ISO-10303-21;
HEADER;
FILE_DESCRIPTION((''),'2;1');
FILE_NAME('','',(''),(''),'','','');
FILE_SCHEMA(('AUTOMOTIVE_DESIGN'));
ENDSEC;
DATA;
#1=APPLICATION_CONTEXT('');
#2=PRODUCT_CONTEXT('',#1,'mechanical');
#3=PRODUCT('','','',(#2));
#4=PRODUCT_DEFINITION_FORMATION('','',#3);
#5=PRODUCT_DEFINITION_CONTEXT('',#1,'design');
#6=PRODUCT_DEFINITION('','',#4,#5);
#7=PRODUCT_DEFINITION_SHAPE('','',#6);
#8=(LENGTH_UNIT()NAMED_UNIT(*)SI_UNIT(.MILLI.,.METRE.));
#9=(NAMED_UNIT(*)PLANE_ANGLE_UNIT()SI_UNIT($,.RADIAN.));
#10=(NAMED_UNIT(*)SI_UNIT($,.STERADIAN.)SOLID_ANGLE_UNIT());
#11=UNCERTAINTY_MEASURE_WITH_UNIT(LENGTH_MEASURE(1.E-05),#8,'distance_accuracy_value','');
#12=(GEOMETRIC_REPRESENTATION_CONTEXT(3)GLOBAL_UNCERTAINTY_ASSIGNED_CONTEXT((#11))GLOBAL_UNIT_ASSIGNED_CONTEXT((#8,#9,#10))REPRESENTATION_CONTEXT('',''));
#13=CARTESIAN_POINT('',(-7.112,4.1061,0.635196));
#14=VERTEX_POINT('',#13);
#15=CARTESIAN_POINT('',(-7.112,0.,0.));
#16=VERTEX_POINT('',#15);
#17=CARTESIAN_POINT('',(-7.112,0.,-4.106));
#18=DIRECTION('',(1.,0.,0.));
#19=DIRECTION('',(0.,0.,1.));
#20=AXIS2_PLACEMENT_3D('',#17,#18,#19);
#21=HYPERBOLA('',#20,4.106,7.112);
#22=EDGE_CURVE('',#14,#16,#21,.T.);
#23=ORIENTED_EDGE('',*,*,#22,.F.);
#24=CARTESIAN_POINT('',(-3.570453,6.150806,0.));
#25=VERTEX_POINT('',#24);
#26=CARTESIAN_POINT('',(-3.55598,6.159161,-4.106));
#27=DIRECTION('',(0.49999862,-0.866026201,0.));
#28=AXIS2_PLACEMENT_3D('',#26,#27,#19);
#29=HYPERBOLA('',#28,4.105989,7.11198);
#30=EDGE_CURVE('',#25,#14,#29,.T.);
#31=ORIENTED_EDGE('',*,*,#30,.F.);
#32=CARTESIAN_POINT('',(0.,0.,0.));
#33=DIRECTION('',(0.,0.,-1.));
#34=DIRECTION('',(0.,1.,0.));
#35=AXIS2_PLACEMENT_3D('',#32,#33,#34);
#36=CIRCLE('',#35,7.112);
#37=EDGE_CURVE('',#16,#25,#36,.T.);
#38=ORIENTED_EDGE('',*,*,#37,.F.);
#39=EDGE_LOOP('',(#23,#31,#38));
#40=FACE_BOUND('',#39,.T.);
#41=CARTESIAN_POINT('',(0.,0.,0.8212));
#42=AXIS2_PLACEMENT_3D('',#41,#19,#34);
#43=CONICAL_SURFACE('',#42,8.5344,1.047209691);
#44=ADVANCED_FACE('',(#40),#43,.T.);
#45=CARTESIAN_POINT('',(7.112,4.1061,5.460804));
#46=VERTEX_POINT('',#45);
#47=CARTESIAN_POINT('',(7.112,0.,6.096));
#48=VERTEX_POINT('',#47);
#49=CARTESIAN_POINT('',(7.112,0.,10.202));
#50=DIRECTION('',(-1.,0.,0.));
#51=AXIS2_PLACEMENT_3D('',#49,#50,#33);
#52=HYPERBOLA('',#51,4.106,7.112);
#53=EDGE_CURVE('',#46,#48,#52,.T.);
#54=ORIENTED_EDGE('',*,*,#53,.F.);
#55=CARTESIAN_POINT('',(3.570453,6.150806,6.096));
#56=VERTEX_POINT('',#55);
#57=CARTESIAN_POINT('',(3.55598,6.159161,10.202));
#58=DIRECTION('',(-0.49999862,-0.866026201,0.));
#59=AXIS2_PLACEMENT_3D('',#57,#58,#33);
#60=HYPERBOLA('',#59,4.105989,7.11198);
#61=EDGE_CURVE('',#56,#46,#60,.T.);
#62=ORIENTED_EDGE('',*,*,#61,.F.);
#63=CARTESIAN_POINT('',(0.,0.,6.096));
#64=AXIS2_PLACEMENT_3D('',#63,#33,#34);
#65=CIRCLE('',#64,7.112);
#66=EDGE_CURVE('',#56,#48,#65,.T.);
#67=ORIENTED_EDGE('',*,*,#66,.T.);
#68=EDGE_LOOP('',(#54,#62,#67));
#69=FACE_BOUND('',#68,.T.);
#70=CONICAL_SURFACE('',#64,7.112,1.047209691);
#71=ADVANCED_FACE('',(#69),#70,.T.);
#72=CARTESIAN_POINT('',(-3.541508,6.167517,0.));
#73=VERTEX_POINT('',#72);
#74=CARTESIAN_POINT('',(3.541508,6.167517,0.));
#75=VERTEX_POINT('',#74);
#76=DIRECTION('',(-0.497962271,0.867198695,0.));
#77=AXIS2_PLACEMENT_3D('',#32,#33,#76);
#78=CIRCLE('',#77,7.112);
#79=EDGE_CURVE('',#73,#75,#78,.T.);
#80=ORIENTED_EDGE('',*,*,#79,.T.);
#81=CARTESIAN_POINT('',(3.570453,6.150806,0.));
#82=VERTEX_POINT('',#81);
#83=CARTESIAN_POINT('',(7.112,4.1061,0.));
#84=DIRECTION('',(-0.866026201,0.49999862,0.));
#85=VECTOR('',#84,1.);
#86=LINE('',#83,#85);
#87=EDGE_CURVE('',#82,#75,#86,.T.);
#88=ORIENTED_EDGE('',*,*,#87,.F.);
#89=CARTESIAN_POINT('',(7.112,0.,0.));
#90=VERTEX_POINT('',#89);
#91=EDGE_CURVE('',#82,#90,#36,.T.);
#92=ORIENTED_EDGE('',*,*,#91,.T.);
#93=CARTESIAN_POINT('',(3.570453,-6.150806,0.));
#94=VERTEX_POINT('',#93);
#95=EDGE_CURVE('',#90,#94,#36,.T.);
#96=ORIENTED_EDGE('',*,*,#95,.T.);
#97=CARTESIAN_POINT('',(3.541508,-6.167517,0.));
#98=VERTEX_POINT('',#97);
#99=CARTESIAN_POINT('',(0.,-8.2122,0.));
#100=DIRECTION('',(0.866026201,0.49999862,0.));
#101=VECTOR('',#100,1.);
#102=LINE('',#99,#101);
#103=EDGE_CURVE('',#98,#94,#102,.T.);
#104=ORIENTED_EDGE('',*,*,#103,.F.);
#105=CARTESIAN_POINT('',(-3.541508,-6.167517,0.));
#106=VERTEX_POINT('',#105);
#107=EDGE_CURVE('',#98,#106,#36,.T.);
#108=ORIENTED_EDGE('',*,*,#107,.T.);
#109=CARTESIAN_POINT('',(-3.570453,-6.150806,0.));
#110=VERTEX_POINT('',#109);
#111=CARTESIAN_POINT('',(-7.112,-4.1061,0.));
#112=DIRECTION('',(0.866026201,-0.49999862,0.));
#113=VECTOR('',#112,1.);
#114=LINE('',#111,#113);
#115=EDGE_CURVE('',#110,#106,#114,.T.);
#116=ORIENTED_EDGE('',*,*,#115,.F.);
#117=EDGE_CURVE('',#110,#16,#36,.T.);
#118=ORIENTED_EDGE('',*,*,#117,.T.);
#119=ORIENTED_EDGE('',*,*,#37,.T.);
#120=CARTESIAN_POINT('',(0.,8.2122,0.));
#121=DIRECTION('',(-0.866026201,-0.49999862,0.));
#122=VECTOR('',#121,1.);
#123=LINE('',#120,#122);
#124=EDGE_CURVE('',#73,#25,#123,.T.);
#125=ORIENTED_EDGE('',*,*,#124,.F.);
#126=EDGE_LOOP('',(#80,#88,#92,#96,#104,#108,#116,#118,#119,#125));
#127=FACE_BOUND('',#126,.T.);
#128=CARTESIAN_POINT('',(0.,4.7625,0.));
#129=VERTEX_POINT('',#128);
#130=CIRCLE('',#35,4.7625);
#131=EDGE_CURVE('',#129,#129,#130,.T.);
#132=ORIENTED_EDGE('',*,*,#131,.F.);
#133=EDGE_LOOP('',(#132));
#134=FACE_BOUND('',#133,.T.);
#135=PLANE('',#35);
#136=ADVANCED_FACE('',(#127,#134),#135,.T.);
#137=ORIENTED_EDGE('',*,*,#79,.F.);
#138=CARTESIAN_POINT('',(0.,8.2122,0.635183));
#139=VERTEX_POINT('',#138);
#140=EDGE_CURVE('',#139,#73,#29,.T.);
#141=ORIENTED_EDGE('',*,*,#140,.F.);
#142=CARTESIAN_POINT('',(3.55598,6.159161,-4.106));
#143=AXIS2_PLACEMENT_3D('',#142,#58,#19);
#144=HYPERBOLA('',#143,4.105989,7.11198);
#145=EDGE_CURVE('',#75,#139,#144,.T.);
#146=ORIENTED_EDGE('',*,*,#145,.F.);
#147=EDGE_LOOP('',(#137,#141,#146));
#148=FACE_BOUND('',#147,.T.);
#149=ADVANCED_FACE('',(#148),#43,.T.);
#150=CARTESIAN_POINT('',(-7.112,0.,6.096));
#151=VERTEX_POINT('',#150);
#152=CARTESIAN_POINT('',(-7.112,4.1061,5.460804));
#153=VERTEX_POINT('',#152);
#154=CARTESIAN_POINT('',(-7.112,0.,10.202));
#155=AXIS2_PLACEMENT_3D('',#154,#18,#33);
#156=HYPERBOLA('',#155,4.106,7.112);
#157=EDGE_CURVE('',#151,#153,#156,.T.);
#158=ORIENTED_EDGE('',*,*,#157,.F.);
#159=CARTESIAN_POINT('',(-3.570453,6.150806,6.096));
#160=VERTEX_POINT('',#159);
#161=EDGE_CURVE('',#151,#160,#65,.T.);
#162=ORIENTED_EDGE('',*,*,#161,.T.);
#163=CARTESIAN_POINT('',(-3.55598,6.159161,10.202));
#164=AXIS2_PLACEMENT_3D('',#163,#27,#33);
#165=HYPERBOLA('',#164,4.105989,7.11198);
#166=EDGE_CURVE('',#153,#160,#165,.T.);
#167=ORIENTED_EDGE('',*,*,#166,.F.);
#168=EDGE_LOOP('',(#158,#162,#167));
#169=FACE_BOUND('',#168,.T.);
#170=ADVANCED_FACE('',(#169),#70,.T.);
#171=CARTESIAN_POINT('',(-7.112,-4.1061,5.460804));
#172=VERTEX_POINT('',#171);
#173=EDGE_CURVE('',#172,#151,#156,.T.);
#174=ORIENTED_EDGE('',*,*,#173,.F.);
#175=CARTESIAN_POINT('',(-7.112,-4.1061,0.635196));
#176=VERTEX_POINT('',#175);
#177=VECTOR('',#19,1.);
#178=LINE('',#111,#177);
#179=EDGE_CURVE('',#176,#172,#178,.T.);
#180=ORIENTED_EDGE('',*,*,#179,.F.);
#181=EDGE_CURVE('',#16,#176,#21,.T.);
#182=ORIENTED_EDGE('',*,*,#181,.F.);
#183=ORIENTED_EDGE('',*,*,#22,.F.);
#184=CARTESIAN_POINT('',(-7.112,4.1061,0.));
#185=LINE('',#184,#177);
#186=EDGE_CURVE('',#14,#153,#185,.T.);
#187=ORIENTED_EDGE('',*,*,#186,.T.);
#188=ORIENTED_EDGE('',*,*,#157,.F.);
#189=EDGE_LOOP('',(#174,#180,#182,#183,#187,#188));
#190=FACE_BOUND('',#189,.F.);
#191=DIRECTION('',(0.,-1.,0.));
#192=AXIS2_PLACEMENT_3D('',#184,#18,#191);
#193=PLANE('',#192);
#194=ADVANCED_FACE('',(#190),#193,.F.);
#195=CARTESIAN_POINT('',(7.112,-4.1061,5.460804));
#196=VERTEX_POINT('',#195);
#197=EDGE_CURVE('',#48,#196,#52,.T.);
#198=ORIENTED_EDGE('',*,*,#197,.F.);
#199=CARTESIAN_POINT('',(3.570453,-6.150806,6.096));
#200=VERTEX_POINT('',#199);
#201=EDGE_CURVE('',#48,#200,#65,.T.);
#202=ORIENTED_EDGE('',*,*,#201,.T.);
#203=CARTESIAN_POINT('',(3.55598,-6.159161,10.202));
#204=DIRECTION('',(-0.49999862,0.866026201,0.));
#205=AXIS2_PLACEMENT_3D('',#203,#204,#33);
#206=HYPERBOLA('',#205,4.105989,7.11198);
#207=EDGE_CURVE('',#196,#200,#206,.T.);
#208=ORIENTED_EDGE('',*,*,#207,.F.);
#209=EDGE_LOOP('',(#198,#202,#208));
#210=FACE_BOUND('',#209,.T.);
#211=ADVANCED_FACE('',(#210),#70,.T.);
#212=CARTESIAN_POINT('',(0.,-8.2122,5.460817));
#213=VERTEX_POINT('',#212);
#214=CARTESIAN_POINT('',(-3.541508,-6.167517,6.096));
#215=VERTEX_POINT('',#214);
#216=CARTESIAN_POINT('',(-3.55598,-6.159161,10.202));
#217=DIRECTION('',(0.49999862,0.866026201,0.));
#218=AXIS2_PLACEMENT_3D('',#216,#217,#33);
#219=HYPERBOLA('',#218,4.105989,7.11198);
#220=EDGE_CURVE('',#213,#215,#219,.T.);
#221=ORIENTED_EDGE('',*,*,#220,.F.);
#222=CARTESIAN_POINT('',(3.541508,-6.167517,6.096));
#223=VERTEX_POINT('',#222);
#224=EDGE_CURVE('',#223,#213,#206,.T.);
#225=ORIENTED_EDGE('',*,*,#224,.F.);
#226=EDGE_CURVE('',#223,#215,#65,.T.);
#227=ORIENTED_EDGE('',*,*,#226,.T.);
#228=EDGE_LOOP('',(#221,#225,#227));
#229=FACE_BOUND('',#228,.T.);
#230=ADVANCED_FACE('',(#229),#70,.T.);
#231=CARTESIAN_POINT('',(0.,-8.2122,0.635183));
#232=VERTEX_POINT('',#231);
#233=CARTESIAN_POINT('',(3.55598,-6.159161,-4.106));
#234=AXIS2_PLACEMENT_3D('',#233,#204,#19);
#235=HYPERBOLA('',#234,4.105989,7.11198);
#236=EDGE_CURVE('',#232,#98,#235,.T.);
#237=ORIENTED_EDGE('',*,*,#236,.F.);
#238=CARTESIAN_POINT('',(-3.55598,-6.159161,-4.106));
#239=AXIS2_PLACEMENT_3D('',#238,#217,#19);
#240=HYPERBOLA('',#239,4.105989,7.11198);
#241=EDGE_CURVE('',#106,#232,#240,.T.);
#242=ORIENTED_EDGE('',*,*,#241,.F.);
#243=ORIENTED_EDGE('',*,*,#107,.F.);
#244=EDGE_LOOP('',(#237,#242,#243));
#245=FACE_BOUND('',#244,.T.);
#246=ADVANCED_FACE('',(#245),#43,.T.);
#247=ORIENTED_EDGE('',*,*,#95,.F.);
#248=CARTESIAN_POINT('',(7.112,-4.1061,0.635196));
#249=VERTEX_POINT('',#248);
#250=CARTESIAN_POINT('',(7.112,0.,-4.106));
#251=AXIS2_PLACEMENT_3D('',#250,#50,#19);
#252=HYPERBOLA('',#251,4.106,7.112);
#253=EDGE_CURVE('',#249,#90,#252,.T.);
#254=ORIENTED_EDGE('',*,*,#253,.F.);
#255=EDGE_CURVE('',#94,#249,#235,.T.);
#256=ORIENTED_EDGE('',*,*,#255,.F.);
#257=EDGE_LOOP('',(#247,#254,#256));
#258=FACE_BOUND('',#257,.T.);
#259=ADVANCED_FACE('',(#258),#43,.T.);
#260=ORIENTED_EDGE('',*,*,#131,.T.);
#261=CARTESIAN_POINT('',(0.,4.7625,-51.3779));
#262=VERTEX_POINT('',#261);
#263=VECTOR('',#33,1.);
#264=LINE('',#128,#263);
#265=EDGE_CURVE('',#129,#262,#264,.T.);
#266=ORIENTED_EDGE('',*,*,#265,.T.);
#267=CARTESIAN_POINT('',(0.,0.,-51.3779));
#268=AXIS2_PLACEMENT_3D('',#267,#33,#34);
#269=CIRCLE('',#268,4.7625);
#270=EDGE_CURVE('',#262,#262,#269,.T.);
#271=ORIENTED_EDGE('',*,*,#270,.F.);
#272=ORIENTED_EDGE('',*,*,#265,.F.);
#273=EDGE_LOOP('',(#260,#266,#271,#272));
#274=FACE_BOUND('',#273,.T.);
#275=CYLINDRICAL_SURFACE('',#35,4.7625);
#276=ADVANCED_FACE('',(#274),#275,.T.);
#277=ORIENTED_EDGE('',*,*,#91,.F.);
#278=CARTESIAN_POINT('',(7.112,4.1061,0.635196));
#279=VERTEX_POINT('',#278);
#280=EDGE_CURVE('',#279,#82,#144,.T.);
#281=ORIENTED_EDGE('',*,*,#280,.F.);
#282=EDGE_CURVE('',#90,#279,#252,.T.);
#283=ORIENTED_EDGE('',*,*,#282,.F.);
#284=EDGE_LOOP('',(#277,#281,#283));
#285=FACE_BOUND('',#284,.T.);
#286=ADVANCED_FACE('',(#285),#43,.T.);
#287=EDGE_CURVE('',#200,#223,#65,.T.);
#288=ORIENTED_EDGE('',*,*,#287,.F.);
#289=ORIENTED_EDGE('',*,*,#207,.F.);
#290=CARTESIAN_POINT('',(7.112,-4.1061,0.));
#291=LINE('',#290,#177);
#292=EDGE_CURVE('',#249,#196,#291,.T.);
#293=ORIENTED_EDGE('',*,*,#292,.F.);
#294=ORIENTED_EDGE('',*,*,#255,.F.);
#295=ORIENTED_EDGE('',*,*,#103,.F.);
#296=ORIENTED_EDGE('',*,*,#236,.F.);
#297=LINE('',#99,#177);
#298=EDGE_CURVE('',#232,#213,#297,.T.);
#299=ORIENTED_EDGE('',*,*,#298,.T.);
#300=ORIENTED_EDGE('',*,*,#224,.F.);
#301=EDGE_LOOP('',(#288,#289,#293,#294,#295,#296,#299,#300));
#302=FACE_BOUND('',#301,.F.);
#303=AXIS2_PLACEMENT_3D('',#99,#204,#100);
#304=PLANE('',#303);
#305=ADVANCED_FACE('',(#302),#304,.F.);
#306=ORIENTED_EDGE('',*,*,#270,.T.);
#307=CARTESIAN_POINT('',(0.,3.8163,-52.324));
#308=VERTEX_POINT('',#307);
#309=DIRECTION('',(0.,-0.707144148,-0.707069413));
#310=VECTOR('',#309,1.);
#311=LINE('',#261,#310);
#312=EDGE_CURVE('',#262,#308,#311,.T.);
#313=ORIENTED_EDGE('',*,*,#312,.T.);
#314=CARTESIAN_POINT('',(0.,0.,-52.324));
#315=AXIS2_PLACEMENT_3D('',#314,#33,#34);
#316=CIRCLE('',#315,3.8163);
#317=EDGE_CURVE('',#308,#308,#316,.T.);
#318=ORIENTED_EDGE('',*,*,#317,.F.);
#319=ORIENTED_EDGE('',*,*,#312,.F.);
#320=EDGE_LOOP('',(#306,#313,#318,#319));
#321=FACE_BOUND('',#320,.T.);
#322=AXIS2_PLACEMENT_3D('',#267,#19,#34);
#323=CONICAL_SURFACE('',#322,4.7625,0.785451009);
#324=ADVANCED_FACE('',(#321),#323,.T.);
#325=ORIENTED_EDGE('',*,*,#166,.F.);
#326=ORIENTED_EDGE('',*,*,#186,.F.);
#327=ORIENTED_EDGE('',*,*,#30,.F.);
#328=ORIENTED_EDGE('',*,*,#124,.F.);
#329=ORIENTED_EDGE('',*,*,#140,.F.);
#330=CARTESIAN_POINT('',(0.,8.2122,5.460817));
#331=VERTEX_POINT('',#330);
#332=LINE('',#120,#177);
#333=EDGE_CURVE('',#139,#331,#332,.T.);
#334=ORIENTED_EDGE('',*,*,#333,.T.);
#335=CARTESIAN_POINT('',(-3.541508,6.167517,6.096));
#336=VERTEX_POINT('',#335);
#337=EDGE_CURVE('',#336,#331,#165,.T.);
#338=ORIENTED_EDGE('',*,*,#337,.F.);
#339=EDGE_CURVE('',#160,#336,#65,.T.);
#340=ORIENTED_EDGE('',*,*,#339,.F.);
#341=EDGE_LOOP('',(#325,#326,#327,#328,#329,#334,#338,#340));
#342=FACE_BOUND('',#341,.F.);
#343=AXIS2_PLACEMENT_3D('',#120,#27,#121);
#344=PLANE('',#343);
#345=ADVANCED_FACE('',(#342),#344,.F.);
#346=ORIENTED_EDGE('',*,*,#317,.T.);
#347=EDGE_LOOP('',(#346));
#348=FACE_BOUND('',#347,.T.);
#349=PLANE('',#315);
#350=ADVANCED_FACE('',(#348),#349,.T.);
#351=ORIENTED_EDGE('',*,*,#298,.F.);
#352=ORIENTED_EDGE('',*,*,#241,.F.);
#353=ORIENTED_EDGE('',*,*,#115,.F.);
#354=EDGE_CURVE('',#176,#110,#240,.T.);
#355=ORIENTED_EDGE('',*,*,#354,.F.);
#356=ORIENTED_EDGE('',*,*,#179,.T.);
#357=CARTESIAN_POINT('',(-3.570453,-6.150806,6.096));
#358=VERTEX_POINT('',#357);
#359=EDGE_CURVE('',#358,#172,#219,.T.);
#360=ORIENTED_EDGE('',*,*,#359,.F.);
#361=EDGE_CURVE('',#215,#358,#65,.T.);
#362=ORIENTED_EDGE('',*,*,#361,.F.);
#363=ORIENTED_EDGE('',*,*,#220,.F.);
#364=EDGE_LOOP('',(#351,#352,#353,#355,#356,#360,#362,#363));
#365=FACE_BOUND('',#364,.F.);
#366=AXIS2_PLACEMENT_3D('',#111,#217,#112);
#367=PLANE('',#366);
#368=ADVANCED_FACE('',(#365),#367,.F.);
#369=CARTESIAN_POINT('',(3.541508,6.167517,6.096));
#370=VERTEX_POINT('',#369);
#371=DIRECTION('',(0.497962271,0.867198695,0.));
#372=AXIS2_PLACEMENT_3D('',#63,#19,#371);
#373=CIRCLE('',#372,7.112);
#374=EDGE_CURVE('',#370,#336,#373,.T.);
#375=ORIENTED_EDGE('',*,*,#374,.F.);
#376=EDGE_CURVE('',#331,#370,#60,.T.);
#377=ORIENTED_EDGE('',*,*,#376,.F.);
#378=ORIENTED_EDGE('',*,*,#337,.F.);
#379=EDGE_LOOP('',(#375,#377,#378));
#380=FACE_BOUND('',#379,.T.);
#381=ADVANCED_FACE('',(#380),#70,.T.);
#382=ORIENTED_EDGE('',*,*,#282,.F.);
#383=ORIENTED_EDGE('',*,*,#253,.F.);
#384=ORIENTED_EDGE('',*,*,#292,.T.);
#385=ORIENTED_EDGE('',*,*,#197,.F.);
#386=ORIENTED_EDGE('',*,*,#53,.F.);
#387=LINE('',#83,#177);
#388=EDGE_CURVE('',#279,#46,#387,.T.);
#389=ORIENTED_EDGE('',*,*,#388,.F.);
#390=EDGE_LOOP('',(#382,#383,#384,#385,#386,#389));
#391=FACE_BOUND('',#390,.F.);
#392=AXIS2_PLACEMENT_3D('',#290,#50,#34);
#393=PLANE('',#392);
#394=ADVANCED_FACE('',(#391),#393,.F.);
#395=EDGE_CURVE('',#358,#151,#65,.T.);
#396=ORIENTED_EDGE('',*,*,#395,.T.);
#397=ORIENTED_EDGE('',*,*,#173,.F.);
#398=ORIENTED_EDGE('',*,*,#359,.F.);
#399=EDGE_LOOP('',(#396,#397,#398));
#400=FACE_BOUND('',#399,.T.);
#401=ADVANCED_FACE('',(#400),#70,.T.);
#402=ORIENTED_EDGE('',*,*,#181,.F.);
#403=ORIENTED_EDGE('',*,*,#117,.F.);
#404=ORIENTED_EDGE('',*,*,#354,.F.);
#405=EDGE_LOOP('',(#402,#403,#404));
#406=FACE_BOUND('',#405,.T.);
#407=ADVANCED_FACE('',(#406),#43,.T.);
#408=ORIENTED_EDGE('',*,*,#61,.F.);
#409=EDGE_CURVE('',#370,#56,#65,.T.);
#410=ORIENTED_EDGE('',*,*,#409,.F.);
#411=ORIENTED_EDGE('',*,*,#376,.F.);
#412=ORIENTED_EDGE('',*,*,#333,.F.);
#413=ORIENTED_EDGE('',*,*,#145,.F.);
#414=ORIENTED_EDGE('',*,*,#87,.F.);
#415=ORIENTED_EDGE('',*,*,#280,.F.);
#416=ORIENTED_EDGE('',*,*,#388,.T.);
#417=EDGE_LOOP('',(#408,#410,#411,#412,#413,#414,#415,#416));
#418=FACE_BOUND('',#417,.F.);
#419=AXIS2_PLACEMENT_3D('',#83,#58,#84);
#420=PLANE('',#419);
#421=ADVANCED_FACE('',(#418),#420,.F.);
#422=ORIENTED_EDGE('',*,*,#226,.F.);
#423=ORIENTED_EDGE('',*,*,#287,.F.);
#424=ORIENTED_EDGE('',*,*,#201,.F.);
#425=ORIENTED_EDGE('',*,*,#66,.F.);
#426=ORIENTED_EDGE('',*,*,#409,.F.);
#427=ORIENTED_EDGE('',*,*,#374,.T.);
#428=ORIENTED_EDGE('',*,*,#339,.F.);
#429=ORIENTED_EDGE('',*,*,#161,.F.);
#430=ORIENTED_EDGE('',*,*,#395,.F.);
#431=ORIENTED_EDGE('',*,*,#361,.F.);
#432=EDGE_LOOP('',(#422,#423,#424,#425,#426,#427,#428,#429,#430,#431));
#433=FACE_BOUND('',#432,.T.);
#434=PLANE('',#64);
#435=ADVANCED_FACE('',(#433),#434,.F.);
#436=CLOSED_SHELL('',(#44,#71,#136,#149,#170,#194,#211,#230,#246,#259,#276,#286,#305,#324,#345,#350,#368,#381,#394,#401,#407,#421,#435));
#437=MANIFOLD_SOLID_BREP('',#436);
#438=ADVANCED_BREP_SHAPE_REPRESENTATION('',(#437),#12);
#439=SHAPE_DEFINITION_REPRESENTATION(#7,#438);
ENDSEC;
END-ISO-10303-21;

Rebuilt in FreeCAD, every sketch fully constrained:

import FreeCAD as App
import Part
import Sketcher
Q = App.Units.Quantity


def add_polygon(sketch, points):
    """Adds a closed chain of lines whose ends are joined by coincident constraints."""
    first, n = sketch.GeometryCount, len(points)
    for a, b in zip(points, points[1:] + points[:1]):
        sketch.addGeometry(Part.LineSegment(App.Vector(*a, 0), App.Vector(*b, 0)), False)
    for i in range(n):
        sketch.addConstraint(Sketcher.Constraint("Coincident", first + i, 2, first + (i + 1) % n, 1))

doc = App.newDocument("Part")
params = doc.addObject("Spreadsheet::Sheet", "Params")
for row, (alias, value) in enumerate([
    ("sketch1_height", "2.3 in"),
    ("sketch1_width", "0.28 in"),
    ("revolution_angle", "360 deg"),
    ("sketch2_diameter", "1 in"),
    ("pocket1_length", "1 in"),
], start=1):
    params.set(f"A{row}", alias)
    params.set(f"B{row}", "=" + value)
    params.setAlias(f"B{row}", alias)

body = doc.addObject("PartDesign::Body", "Body")

sketch1 = body.newObject("Sketcher::SketchObject", "Sketch")
sketch1.AttachmentSupport = (doc.getObject("YZ_Plane"), [""])
sketch1.MapMode = "FlatFace"
add_polygon(sketch1, [(0, 6.1), (0, -52.3), (3.8, -52.3), (4.8, -51.4), (4.8, 0), (7.1, 0), (8.5, 0.8), (8.5, 5.3), (7.1, 6.1)])
sketch1.addConstraint([
    Sketcher.Constraint("Vertical", 0),
    Sketcher.Constraint("Horizontal", 1),
    Sketcher.Constraint("Vertical", 3),
    Sketcher.Constraint("Horizontal", 4),
    Sketcher.Constraint("Vertical", 6),
    Sketcher.Constraint("Horizontal", 8),
    Sketcher.Constraint("PointOnObject", 0, 2, -2),
    Sketcher.Constraint("PointOnObject", 3, 2, -1),
    Sketcher.Constraint("Vertical", 4, 2, 7, 2),
    Sketcher.Constraint("Equal", 5, 7),
    Sketcher.Constraint("DistanceY", 0, 2, 0, 1, Q("2.3 in")),
    Sketcher.Constraint("Angle", 5, Q("29.9993 deg")),
    Sketcher.Constraint("DistanceX", 8, 2, 8, 1, Q("0.28 in")),
    Sketcher.Constraint("DistanceY", 0, 2, -1, 1, Q("2.06 in")),
    Sketcher.Constraint("DistanceX", 4, 1, 4, 2, Q("0.0925 in")),
    Sketcher.Constraint("DistanceX", -1, 1, 5, 2, Q("0.336 in")),
    Sketcher.Constraint("DistanceX", 1, 1, 1, 2, 3.8163),
    Sketcher.Constraint("DistanceY", 3, 1, 3, 2, 51.378),
])
sketch1.setExpression("Constraints[19]", "Params.sketch1_height")
sketch1.setExpression("Constraints[21]", "Params.sketch1_width")
revolution = body.newObject("PartDesign::Revolution", "Revolution")
revolution.Profile = sketch1
revolution.ReferenceAxis = (sketch1, ["V_Axis"])
revolution.setExpression("Angle", "Params.revolution_angle")

sketch2 = body.newObject("Sketcher::SketchObject", "Sketch001")
sketch2.AttachmentSupport = (doc.getObject("XY_Plane"), [""])
sketch2.MapMode = "FlatFace"
sketch2.addGeometry(Part.Circle(App.Vector(0, 0, 0), App.Vector(0, 0, 1), 13), False)
add_polygon(sketch2, [(0, -8), (-7, -4), (-7, 4), (0, 8), (7, 4), (7, -4)])
sketch2.addConstraint([
    Sketcher.Constraint("Vertical", 2),
    Sketcher.Constraint("Vertical", 5),
    Sketcher.Constraint("Coincident", 0, 3, -1, 1),
    Sketcher.Constraint("Symmetric", 1, 2, 4, 2, -1, 1),
    Sketcher.Constraint("Symmetric", 3, 2, 6, 2, -1, 1),
    Sketcher.Constraint("PointOnObject", 3, 2, -2),
    Sketcher.Constraint("Parallel", 3, 6),
    Sketcher.Constraint("Horizontal", 2, 2, 4, 2),
    Sketcher.Constraint("Diameter", 0, Q("1 in")),
    Sketcher.Constraint("Angle", 1, Q("150 deg")),
    Sketcher.Constraint("DistanceX", 1, 2, -1, 1, Q("0.28 in")),
    Sketcher.Constraint("DistanceY", 2, 1, 2, 2, 8.2122),
])
sketch2.setExpression("Constraints[14]", "Params.sketch2_diameter")
pocket1 = body.newObject("PartDesign::Pocket", "Pocket")
pocket1.Profile = sketch2
pocket1.setExpression("Length", "Params.pocket1_length")
pocket1.Reversed = True

doc.recompute()
